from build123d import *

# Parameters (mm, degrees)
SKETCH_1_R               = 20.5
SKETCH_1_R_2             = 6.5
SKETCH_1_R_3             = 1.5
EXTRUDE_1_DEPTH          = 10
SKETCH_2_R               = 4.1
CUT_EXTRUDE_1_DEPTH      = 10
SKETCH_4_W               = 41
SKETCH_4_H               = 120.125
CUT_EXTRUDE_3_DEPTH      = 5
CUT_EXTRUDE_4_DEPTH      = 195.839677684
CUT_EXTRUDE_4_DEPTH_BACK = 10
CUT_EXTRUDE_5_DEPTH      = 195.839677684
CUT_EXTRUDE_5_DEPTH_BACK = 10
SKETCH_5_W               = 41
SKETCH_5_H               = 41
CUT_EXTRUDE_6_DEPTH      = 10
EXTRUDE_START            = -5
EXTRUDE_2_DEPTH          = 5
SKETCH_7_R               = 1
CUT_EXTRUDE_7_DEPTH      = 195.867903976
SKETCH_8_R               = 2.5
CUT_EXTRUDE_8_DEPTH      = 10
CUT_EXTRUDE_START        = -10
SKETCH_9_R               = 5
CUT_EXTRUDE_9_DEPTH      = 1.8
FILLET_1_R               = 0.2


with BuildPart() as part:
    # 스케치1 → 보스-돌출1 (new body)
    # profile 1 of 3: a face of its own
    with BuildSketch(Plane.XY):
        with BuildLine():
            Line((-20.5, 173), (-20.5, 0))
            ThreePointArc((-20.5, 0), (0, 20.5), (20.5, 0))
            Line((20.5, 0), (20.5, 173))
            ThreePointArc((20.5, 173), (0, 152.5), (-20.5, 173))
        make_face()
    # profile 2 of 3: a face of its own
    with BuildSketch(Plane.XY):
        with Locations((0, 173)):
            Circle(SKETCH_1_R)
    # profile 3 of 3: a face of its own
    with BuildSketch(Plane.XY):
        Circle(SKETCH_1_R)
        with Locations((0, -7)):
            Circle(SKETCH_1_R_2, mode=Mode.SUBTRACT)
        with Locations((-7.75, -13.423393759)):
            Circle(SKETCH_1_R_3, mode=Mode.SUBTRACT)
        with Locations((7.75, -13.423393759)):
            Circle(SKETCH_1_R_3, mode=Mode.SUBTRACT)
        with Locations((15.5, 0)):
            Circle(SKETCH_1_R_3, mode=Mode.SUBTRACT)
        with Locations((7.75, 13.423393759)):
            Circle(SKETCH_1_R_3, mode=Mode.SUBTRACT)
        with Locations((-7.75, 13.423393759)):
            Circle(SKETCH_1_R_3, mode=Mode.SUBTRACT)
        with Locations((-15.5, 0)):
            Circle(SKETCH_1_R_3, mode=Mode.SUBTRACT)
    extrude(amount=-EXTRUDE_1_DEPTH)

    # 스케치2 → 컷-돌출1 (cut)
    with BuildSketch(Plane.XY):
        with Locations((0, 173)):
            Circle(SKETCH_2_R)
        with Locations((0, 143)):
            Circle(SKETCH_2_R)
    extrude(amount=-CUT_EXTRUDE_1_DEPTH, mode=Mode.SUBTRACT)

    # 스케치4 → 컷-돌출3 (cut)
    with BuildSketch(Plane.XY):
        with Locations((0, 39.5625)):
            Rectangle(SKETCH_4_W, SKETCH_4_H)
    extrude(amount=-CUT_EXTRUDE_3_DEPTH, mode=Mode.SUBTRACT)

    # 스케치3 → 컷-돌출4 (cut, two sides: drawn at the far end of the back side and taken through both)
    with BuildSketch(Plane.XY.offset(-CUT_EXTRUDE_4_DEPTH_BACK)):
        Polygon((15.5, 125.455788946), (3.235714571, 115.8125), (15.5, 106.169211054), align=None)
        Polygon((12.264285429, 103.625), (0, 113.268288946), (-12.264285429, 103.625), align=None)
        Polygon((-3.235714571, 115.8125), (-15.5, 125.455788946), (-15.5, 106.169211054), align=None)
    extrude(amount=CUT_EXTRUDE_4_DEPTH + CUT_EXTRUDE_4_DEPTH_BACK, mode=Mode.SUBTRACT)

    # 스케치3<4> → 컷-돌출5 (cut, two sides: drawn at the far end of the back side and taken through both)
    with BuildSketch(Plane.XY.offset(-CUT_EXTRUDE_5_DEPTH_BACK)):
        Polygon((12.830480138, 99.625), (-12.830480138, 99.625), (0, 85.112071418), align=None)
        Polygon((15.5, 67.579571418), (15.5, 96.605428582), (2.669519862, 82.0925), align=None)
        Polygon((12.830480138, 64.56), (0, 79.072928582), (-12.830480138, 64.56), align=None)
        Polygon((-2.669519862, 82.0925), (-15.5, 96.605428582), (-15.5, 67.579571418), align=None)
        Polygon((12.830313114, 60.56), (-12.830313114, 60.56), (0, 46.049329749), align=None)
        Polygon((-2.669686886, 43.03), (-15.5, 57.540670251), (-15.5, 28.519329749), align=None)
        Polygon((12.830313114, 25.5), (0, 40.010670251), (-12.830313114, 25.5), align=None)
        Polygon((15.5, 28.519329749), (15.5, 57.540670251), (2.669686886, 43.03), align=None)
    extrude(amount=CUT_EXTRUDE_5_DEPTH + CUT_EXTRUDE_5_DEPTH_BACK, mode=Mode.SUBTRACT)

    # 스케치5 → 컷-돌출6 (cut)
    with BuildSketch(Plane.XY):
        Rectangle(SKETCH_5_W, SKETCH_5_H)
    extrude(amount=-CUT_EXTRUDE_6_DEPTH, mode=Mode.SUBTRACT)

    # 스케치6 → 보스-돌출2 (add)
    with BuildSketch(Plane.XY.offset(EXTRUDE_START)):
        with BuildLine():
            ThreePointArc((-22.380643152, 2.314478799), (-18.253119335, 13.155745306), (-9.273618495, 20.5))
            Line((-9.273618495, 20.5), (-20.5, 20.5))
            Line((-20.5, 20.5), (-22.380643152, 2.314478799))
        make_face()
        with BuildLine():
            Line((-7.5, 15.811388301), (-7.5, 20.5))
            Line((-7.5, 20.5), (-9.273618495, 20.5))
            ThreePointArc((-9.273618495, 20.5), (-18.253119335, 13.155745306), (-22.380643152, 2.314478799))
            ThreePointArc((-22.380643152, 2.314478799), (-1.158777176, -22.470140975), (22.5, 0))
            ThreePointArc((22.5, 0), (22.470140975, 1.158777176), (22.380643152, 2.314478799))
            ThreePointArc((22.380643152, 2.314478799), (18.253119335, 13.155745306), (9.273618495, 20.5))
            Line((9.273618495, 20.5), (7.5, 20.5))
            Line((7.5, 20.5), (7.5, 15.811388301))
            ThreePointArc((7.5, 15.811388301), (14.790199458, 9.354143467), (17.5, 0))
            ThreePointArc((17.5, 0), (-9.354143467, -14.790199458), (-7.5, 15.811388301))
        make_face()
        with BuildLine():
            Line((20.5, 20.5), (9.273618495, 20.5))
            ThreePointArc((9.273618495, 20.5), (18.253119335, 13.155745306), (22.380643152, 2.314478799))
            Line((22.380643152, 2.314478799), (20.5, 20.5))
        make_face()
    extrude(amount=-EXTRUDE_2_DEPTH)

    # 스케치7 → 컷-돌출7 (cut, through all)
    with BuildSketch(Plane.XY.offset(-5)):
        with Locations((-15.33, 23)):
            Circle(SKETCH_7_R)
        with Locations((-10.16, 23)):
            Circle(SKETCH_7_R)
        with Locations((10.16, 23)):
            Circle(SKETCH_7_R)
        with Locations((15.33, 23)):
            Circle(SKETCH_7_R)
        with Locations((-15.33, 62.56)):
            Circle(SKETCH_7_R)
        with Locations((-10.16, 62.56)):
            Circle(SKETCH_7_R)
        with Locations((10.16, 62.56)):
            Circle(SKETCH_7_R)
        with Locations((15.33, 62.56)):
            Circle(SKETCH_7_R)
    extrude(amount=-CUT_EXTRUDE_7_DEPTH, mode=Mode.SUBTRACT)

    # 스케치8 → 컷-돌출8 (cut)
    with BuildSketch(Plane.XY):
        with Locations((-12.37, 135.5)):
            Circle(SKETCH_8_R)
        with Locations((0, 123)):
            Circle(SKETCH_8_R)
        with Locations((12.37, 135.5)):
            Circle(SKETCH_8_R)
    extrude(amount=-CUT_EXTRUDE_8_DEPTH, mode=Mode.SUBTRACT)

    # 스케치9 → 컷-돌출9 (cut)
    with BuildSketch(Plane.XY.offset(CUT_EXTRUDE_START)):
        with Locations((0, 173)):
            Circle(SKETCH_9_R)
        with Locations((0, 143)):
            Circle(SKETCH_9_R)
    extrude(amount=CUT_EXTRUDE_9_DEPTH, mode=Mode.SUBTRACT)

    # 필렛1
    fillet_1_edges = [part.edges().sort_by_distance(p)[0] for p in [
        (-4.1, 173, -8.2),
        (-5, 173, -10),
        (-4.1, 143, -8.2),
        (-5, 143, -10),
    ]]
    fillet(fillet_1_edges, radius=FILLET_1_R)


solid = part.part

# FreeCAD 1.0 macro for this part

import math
import FreeCAD as App
import Part
import Sketcher

V = App.Vector
Q = App.Units.Quantity


def edges_at(feature, points):
    """Names of the edges that pass closest to the given points."""
    edges = feature.Shape.Edges
    near = lambda p: min(range(len(edges)), key=lambda i: edges[i].distToShape(Part.Vertex(*p))[0])
    return sorted({f"Edge{near(p) + 1}" for p in points})


def add_polygon(sketch, points):
    """Adds a closed chain of lines whose ends are joined by coincident constraints."""
    first, n = sketch.GeometryCount, len(points)
    for a, b in zip(points, points[1:] + points[:1]):
        sketch.addGeometry(Part.LineSegment(App.Vector(*a, 0), App.Vector(*b, 0)), False)
    for i in range(n):
        sketch.addConstraint(Sketcher.Constraint("Coincident", first + i, 2, first + (i + 1) % n, 1))

doc = App.newDocument("Part")
body = doc.addObject("PartDesign::Body", "Body")

sketch1 = doc.addObject("Sketcher::SketchObject", "Sketch")
body.addObject(sketch1)
sketch1.AttachmentSupport = (doc.XY_Plane, [""])
sketch1.MapMode = "FlatFace"
sketch1.addGeometry([
    Part.LineSegment(V(-20.5, 173, 0), V(-20.5, 0, 0)),
    Part.ArcOfCircle(Part.Circle(V(0, 0, 0), V(0, 0, 1), 20.5), math.radians(180), math.radians(360)),
    Part.LineSegment(V(20.5, 0, 0), V(20.5, 173, 0)),
    Part.ArcOfCircle(Part.Circle(V(0, 173, 0), V(0, 0, 1), 20.5), math.radians(0), math.radians(180)),
    Part.Circle(V(7.8, 13.4, 0), V(0, 0, 1), 1.5),
    Part.Circle(V(-7.8, -13.4, 0), V(0, 0, 1), 1.5),
    Part.Circle(V(7.8, -13.4, 0), V(0, 0, 1), 1.5),
    Part.Circle(V(0, -7, 0), V(0, 0, 1), 6.5),
    Part.Circle(V(-15.5, 0, 0), V(0, 0, 1), 1.5),
    Part.Circle(V(-7.8, 13.4, 0), V(0, 0, 1), 1.5),
    Part.Circle(V(15.5, 0, 0), V(0, 0, 1), 1.5),
], False)
sketch1.addConstraint([
    Sketcher.Constraint("Tangent", 0, 2, 1, 1),
    Sketcher.Constraint("Tangent", 1, 2, 2, 1),
    Sketcher.Constraint("Tangent", 2, 2, 3, 1),
    Sketcher.Constraint("Tangent", 3, 2, 0, 1),
    Sketcher.Constraint("Vertical", 0),
    Sketcher.Constraint("Vertical", 2),
    Sketcher.Constraint("Coincident", 1, 3, -1, 1),
    Sketcher.Constraint("Equal", 4, 5),
    Sketcher.Constraint("Equal", 5, 6),
    Sketcher.Constraint("Equal", 6, 8),
    Sketcher.Constraint("Equal", 8, 9),
    Sketcher.Constraint("Equal", 9, 10),
    Sketcher.Constraint("Symmetric", 4, 3, 5, 3, -1, 1),
    Sketcher.Constraint("Symmetric", 6, 3, 9, 3, -1, 1),
    Sketcher.Constraint("Symmetric", 8, 3, 10, 3, -1, 1),
    Sketcher.Constraint("Symmetric", 5, 3, 6, 3, -2),
    Sketcher.Constraint("PointOnObject", 7, 3, -2),
    Sketcher.Constraint("PointOnObject", 8, 3, -1),
    Sketcher.Constraint("Diameter", 4, Q("3 mm")),
    Sketcher.Constraint("Diameter", 7, Q("13 mm")),
    Sketcher.Constraint("Radius", 1, Q("20.5 mm")),
    Sketcher.Constraint("DistanceY", 0, 2, 0, 1, Q("173 mm")),
    Sketcher.Constraint("DistanceY", 7, 3, -1, 1, Q("7 mm")),
    Sketcher.Constraint("DistanceX", 0, 2, 8, 3, Q("5 mm")),
    Sketcher.Constraint("DistanceX", 5, 3, 4, 3, Q("15.5 mm")),
    Sketcher.Constraint("DistanceY", -1, 1, 4, 3, Q("13.423394 mm")),
])
pad1 = doc.addObject("PartDesign::Pad", "Pad")
body.addObject(pad1)
pad1.Profile = sketch1
pad1.Length = 10
pad1.Reversed = True

sketch2 = doc.addObject("Sketcher::SketchObject", "Sketch001")
body.addObject(sketch2)
sketch2.AttachmentSupport = (doc.XY_Plane, [""])
sketch2.MapMode = "FlatFace"
sketch2.addGeometry([
    Part.Circle(V(0, 173, 0), V(0, 0, 1), 4.1),
    Part.Circle(V(0, 143, 0), V(0, 0, 1), 4.1),
], False)
sketch2.addConstraint([
    Sketcher.Constraint("Equal", 0, 1),
    Sketcher.Constraint("PointOnObject", 0, 3, -2),
    Sketcher.Constraint("PointOnObject", 1, 3, -2),
    Sketcher.Constraint("Diameter", 0, Q("8.2 mm")),
    Sketcher.Constraint("DistanceY", -1, 1, 0, 3, Q("173 mm")),
    Sketcher.Constraint("DistanceY", -1, 1, 1, 3, Q("143 mm")),
])
pocket1 = doc.addObject("PartDesign::Pocket", "Pocket")
body.addObject(pocket1)
pocket1.Profile = sketch2
pocket1.Length = 10

sketch3 = doc.addObject("Sketcher::SketchObject", "Sketch002")
body.addObject(sketch3)
sketch3.AttachmentSupport = (doc.XY_Plane, [""])
sketch3.MapMode = "FlatFace"
add_polygon(sketch3, [(-20, 100), (-20, -20), (20, -20), (20, 100)])
sketch3.addConstraint([
    Sketcher.Constraint("Vertical", 0),
    Sketcher.Constraint("Horizontal", 1),
    Sketcher.Constraint("Vertical", 2),
    Sketcher.Constraint("Horizontal", 3),
    Sketcher.Constraint("DistanceX", 1, 1, 1, 2, Q("41 mm")),
    Sketcher.Constraint("DistanceX", 0, 2, -1, 1, Q("20.5 mm")),
    Sketcher.Constraint("DistanceY", 0, 2, -1, 1, Q("20.5 mm")),
    Sketcher.Constraint("DistanceY", 0, 2, 0, 1, Q("120.125 mm")),
])
pocket2 = doc.addObject("PartDesign::Pocket", "Pocket001")
body.addObject(pocket2)
pocket2.Profile = sketch3
pocket2.Length = 5

sketch4 = doc.addObject("Sketcher::SketchObject", "Sketch003")
body.addObject(sketch4)
sketch4.AttachmentSupport = (doc.XY_Plane, [""])
sketch4.MapMode = "FlatFace"
add_polygon(sketch4, [(16, 125), (3, 116), (16, 106)])
add_polygon(sketch4, [(12, 104), (0, 113), (-12, 104)])
add_polygon(sketch4, [(-3, 116), (-16, 125), (-16, 106)])
sketch4.addConstraint([
    Sketcher.Constraint("Vertical", 2),
    Sketcher.Constraint("Horizontal", 5),
    Sketcher.Constraint("Vertical", 7),
    Sketcher.Constraint("Symmetric", 2, 2, 6, 2, -2),
    Sketcher.Constraint("Symmetric", 0, 2, 8, 2, -2),
    Sketcher.Constraint("PointOnObject", 3, 2, -2),
    Sketcher.Constraint("Parallel", 1, 3),
    Sketcher.Constraint("Parallel", 0, 4),
    Sketcher.Constraint("Parallel", 3, 6),
    Sketcher.Constraint("Parallel", 4, 8),
    Sketcher.Constraint("Equal", 1, 3),
    Sketcher.Constraint("DistanceX", 6, 2, 2, 2, Q("31 mm")),
    Sketcher.Constraint("DistanceY", -1, 1, 4, 2, Q("103.625 mm")),
    Sketcher.Constraint("DistanceX", 5, 1, 5, 2, Q("24.528571 mm")),
    Sketcher.Constraint("DistanceY", -1, 1, 0, 2, Q("115.8125 mm")),
    Sketcher.Constraint("DistanceY", 2, 1, 2, 2, Q("19.286578 mm")),
])
pocket3 = doc.addObject("PartDesign::Pocket", "Pocket002")
body.addObject(pocket3)
pocket3.Profile = sketch4
pocket3.Type = "ThroughAll"
pocket3.Midplane = True

sketch5 = doc.addObject("Sketcher::SketchObject", "Sketch004")
body.addObject(sketch5)
sketch5.AttachmentSupport = (doc.XY_Plane, [""])
sketch5.MapMode = "FlatFace"
add_polygon(sketch5, [(13, 100), (-13, 100), (0, 85)])
add_polygon(sketch5, [(16, 68), (16, 97), (3, 82)])
add_polygon(sketch5, [(13, 65), (0, 79), (-13, 65)])
add_polygon(sketch5, [(-3, 82), (-16, 97), (-16, 68)])
add_polygon(sketch5, [(13, 61), (-13, 61), (0, 46)])
add_polygon(sketch5, [(-3, 43), (-16, 58), (-16, 29)])
add_polygon(sketch5, [(13, 26), (0, 40), (-13, 26)])
add_polygon(sketch5, [(16, 29), (16, 58), (3, 43)])
sketch5.addConstraint([
    Sketcher.Constraint("Horizontal", 0),
    Sketcher.Constraint("Vertical", 3),
    Sketcher.Constraint("Horizontal", 8),
    Sketcher.Constraint("Vertical", 10),
    Sketcher.Constraint("Horizontal", 12),
    Sketcher.Constraint("Vertical", 16),
    Sketcher.Constraint("Horizontal", 20),
    Sketcher.Constraint("Vertical", 21),
    Sketcher.Constraint("Symmetric", 3, 2, 9, 2, -2),
    Sketcher.Constraint("Symmetric", 4, 2, 11, 2, -2),
    Sketcher.Constraint("Symmetric", 15, 2, 21, 2, -2),
    Sketcher.Constraint("Symmetric", 17, 2, 22, 2, -2),
    Sketcher.Constraint("PointOnObject", 1, 2, -2),
    Sketcher.Constraint("PointOnObject", 6, 2, -2),
    Sketcher.Constraint("PointOnObject", 13, 2, -2),
    Sketcher.Constraint("PointOnObject", 18, 2, -2),
    Sketcher.Constraint("Parallel", 2, 4),
    Sketcher.Constraint("Parallel", 1, 5),
    Sketcher.Constraint("Parallel", 5, 6),
    Sketcher.Constraint("Parallel", 4, 7),
    Sketcher.Constraint("Parallel", 6, 9),
    Sketcher.Constraint("Parallel", 7, 11),
    Sketcher.Constraint("Parallel", 13, 15),
    Sketcher.Constraint("Parallel", 14, 17),
    Sketcher.Constraint("Parallel", 15, 18),
    Sketcher.Constraint("Parallel", 17, 19),
    Sketcher.Constraint("Parallel", 19, 22),
    Sketcher.Constraint("Parallel", 18, 23),
    Sketcher.Constraint("Vertical", 0, 2, 7, 2),
    Sketcher.Constraint("Vertical", 10, 2, 15, 2),
    Sketcher.Constraint("Vertical", 12, 2, 19, 2),
    Sketcher.Constraint("Equal", 2, 4),
    Sketcher.Constraint("Equal", 14, 15),
    Sketcher.Constraint("DistanceY", 12, 2, 7, 2, Q("4 mm")),
    Sketcher.Constraint("DistanceX", -1, 1, 3, 2, Q("15.5 mm")),
    Sketcher.Constraint("DistanceY", -1, 1, 19, 2, Q("25.5 mm")),
    Sketcher.Constraint("DistanceY", -1, 1, 7, 2, Q("64.56 mm")),
    Sketcher.Constraint("DistanceY", -1, 1, 17, 2, Q("43.03 mm")),
    Sketcher.Constraint("DistanceY", -1, 1, 0, 2, Q("99.625 mm")),
    Sketcher.Constraint("DistanceX", 0, 2, 0, 1, Q("25.66096 mm")),
    Sketcher.Constraint("DistanceY", 16, 2, 16, 1, Q("29.021341 mm")),
    Sketcher.Constraint("DistanceY", -1, 1, 4, 2, Q("82.0925 mm")),
    Sketcher.Constraint("DistanceY", 15, 2, 10, 2, Q("10.038901 mm")),
    Sketcher.Constraint("DistanceX", 12, 2, 12, 1, Q("25.660626 mm")),
])
pocket4 = doc.addObject("PartDesign::Pocket", "Pocket003")
body.addObject(pocket4)
pocket4.Profile = sketch5
pocket4.Type = "ThroughAll"
pocket4.Midplane = True

sketch6 = doc.addObject("Sketcher::SketchObject", "Sketch005")
body.addObject(sketch6)
sketch6.AttachmentSupport = (doc.XY_Plane, [""])
sketch6.MapMode = "FlatFace"
add_polygon(sketch6, [(-20, 20), (-20, -20), (20, -20), (20, 20)])
sketch6.addConstraint([
    Sketcher.Constraint("Vertical", 0),
    Sketcher.Constraint("Horizontal", 1),
    Sketcher.Constraint("Vertical", 2),
    Sketcher.Constraint("Horizontal", 3),
    Sketcher.Constraint("Symmetric", 0, 2, 2, 2, -1, 1),
    Sketcher.Constraint("Equal", 3, 0),
    Sketcher.Constraint("DistanceX", 1, 1, 1, 2, Q("41 mm")),
])
pocket5 = doc.addObject("PartDesign::Pocket", "Pocket004")
body.addObject(pocket5)
pocket5.Profile = sketch6
pocket5.Length = 10

sketch7 = doc.addObject("Sketcher::SketchObject", "Sketch006")
body.addObject(sketch7)
sketch7.AttachmentSupport = (doc.XY_Plane, [""])
sketch7.MapMode = "FlatFace"
sketch7.AttachmentOffset = App.Placement(V(0, 0, -5), App.Rotation())
sketch7.addGeometry([
    Part.LineSegment(V(-20.5, 20.5, 0), V(-22.4, 2.3, 0)),
    Part.ArcOfCircle(Part.Circle(V(0, 0, 0), V(0, 0, 1), 22.5), math.radians(174), math.radians(360)),
    Part.ArcOfCircle(Part.Circle(V(0, 0, 0), V(0, 0, 1), 22.5), math.radians(0), math.radians(5.9)),
    Part.LineSegment(V(22.4, 2.3, 0), V(20.5, 20.5, 0)),
    Part.LineSegment(V(20.5, 20.5, 0), V(7.5, 20.5, 0)),
    Part.LineSegment(V(7.5, 20.5, 0), V(7.5, 15.8, 0)),
    Part.ArcOfCircle(Part.Circle(V(0, 0, 0), V(0, 0, 1), 17.5), math.radians(0), math.radians(65)),
    Part.ArcOfCircle(Part.Circle(V(0, 0, 0), V(0, 0, 1), 17.5), math.radians(115), math.radians(360)),
    Part.LineSegment(V(-7.5, 15.8, 0), V(-7.5, 20.5, 0)),
    Part.LineSegment(V(-7.5, 20.5, 0), V(-20.5, 20.5, 0)),
], False)
sketch7.addConstraint([
    Sketcher.Constraint("Tangent", 0, 2, 1, 1),
    Sketcher.Constraint("Tangent", 1, 2, 2, 1),
    Sketcher.Constraint("Tangent", 2, 2, 3, 1),
    Sketcher.Constraint("Coincident", 3, 2, 4, 1),
    Sketcher.Constraint("Coincident", 4, 2, 5, 1),
    Sketcher.Constraint("Coincident", 5, 2, 6, 2),
    Sketcher.Constraint("Tangent", 6, 1, 7, 2),
    Sketcher.Constraint("Coincident", 7, 1, 8, 1),
    Sketcher.Constraint("Coincident", 8, 2, 9, 1),
    Sketcher.Constraint("Coincident", 9, 2, 0, 1),
    Sketcher.Constraint("Horizontal", 4),
    Sketcher.Constraint("Vertical", 5),
    Sketcher.Constraint("Vertical", 8),
    Sketcher.Constraint("Horizontal", 9),
    Sketcher.Constraint("Coincident", 1, 3, -1, 1),
    Sketcher.Constraint("Coincident", 6, 3, -1, 1),
    Sketcher.Constraint("Equal", 1, 2),
    Sketcher.Constraint("Equal", 6, 7),
    Sketcher.Constraint("Symmetric", 4, 2, 8, 2, -2),
    Sketcher.Constraint("PointOnObject", 1, 2, -1),
    Sketcher.Constraint("PointOnObject", 6, 1, -1),
    Sketcher.Constraint("Horizontal", 0, 2, 2, 2),
    Sketcher.Constraint("Radius", 1, Q("22.5 mm")),
    Sketcher.Constraint("Radius", 6, Q("17.5 mm")),
    Sketcher.Constraint("DistanceX", 4, 2, 4, 1, Q("13 mm")),
    Sketcher.Constraint("DistanceX", 3, 2, 1, 2, Q("2 mm")),
    Sketcher.Constraint("DistanceY", -1, 1, 3, 2, Q("20.5 mm")),
])
pad2 = doc.addObject("PartDesign::Pad", "Pad001")
body.addObject(pad2)
pad2.Profile = sketch7
pad2.Length = 5
pad2.Reversed = True

sketch8 = doc.addObject("Sketcher::SketchObject", "Sketch007")
body.addObject(sketch8)
sketch8.AttachmentSupport = (doc.XY_Plane, [""])
sketch8.MapMode = "FlatFace"
sketch8.AttachmentOffset = App.Placement(V(0, 0, -5), App.Rotation())
sketch8.addGeometry([
    Part.Circle(V(-15.3, 23, 0), V(0, 0, 1), 1),
    Part.Circle(V(-10.2, 23, 0), V(0, 0, 1), 1),
    Part.Circle(V(10.2, 23, 0), V(0, 0, 1), 1),
    Part.Circle(V(15.3, 23, 0), V(0, 0, 1), 1),
    Part.Circle(V(-15.3, 62.6, 0), V(0, 0, 1), 1),
    Part.Circle(V(-10.2, 62.6, 0), V(0, 0, 1), 1),
    Part.Circle(V(10.2, 62.6, 0), V(0, 0, 1), 1),
    Part.Circle(V(15.3, 62.6, 0), V(0, 0, 1), 1),
], False)
sketch8.addConstraint([
    Sketcher.Constraint("Equal", 0, 1),
    Sketcher.Constraint("Equal", 1, 2),
    Sketcher.Constraint("Equal", 2, 3),
    Sketcher.Constraint("Equal", 3, 4),
    Sketcher.Constraint("Equal", 4, 5),
    Sketcher.Constraint("Equal", 5, 6),
    Sketcher.Constraint("Equal", 6, 7),
    Sketcher.Constraint("Symmetric", 1, 3, 2, 3, -2),
    Sketcher.Constraint("Symmetric", 0, 3, 3, 3, -2),
    Sketcher.Constraint("Symmetric", 5, 3, 6, 3, -2),
    Sketcher.Constraint("Symmetric", 4, 3, 7, 3, -2),
    Sketcher.Constraint("Horizontal", 0, 3, 1, 3),
    Sketcher.Constraint("Horizontal", 4, 3, 5, 3),
    Sketcher.Constraint("Vertical", 0, 3, 4, 3),
    Sketcher.Constraint("Vertical", 1, 3, 5, 3),
    Sketcher.Constraint("Diameter", 0, Q("2 mm")),
    Sketcher.Constraint("DistanceY", -1, 1, 0, 3, Q("23 mm")),
    Sketcher.Constraint("DistanceX", 0, 3, -1, 1, Q("15.33 mm")),
    Sketcher.Constraint("DistanceX", 1, 3, -1, 1, Q("10.16 mm")),
    Sketcher.Constraint("DistanceY", -1, 1, 4, 3, Q("62.56 mm")),
])
pocket6 = doc.addObject("PartDesign::Pocket", "Pocket005")
body.addObject(pocket6)
pocket6.Profile = sketch8
pocket6.Type = "ThroughAll"

sketch9 = doc.addObject("Sketcher::SketchObject", "Sketch008")
body.addObject(sketch9)
sketch9.AttachmentSupport = (doc.XY_Plane, [""])
sketch9.MapMode = "FlatFace"
sketch9.addGeometry([
    Part.Circle(V(-12.4, 135.5, 0), V(0, 0, 1), 2.5),
    Part.Circle(V(0, 123, 0), V(0, 0, 1), 2.5),
    Part.Circle(V(12.4, 135.5, 0), V(0, 0, 1), 2.5),
], False)
sketch9.addConstraint([
    Sketcher.Constraint("Equal", 0, 1),
    Sketcher.Constraint("Equal", 1, 2),
    Sketcher.Constraint("Symmetric", 0, 3, 2, 3, -2),
    Sketcher.Constraint("PointOnObject", 1, 3, -2),
    Sketcher.Constraint("Diameter", 0, Q("5 mm")),
    Sketcher.Constraint("DistanceY", -1, 1, 1, 3, Q("123 mm")),
    Sketcher.Constraint("DistanceY", -1, 1, 0, 3, Q("135.5 mm")),
    Sketcher.Constraint("DistanceX", 0, 3, -1, 1, Q("12.37 mm")),
])
pocket7 = doc.addObject("PartDesign::Pocket", "Pocket006")
body.addObject(pocket7)
pocket7.Profile = sketch9
pocket7.Length = 10

sketch10 = doc.addObject("Sketcher::SketchObject", "Sketch009")
body.addObject(sketch10)
sketch10.AttachmentSupport = (doc.XY_Plane, [""])
sketch10.MapMode = "FlatFace"
sketch10.AttachmentOffset = App.Placement(V(0, 0, -10), App.Rotation())
sketch10.addGeometry([
    Part.Circle(V(0, 173, 0), V(0, 0, 1), 5),
    Part.Circle(V(0, 143, 0), V(0, 0, 1), 5),
], False)
sketch10.addConstraint([
    Sketcher.Constraint("Equal", 0, 1),
    Sketcher.Constraint("PointOnObject", 0, 3, -2),
    Sketcher.Constraint("PointOnObject", 1, 3, -2),
    Sketcher.Constraint("Diameter", 0, Q("10 mm")),
    Sketcher.Constraint("DistanceY", -1, 1, 0, 3, Q("173 mm")),
    Sketcher.Constraint("DistanceY", -1, 1, 1, 3, Q("143 mm")),
])
pocket8 = doc.addObject("PartDesign::Pocket", "Pocket007")
body.addObject(pocket8)
pocket8.Profile = sketch10
pocket8.Length = 1.8
pocket8.Reversed = True
doc.recompute()

fillet = doc.addObject("PartDesign::Fillet", "Fillet")
body.addObject(fillet)
fillet.Base = (pocket8, edges_at(pocket8, [
    (-4.1, 173, -8.2),
    (-5, 173, -10),
    (-4.1, 143, -8.2),
    (-5, 143, -10),
]))
fillet.Radius = 0.2

doc.recompute()
